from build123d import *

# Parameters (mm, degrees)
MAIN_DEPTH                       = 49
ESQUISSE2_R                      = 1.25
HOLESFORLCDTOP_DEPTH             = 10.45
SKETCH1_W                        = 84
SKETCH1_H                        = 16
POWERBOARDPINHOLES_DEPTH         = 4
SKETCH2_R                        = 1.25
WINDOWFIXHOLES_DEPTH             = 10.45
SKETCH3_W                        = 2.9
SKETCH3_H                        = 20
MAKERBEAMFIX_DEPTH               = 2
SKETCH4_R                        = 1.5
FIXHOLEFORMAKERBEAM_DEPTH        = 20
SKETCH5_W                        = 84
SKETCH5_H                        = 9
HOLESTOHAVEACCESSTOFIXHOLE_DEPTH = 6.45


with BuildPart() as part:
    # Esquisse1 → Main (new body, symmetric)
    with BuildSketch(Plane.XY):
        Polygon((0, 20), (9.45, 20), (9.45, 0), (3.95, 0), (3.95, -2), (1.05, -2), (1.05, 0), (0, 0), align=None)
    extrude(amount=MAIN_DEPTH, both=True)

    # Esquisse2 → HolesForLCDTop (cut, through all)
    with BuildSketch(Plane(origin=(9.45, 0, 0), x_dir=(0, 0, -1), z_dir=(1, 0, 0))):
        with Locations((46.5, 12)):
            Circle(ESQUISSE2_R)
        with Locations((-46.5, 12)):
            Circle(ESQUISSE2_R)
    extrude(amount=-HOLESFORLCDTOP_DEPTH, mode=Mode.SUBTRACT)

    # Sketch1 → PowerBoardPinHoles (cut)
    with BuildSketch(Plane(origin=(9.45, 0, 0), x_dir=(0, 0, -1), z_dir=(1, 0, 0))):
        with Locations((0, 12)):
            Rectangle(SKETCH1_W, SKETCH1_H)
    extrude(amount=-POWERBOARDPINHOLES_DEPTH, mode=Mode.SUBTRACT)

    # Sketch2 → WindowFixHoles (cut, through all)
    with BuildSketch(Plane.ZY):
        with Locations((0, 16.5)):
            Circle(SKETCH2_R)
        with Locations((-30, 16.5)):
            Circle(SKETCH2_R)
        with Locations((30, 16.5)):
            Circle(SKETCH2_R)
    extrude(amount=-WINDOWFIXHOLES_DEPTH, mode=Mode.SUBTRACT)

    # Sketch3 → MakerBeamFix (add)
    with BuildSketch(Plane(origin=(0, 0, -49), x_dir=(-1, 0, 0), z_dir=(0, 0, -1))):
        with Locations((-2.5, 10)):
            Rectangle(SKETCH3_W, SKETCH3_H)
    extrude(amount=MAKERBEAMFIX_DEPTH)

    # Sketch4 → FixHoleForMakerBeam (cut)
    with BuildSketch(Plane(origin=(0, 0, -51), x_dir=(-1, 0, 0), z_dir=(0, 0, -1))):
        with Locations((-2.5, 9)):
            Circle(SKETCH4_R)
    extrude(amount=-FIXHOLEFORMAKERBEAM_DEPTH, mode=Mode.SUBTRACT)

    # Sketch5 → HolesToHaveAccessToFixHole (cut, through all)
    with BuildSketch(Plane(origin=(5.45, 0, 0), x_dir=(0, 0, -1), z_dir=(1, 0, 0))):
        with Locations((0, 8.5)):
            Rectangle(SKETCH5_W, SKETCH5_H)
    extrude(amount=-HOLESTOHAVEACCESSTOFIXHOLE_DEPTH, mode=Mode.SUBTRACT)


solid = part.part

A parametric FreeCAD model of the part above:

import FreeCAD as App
import Part
import Sketcher

V = App.Vector


def add_polygon(sketch, points):
    """Adds a closed chain of lines whose ends are joined by coincident constraints."""
    first, n = sketch.GeometryCount, len(points)
    for a, b in zip(points, points[1:] + points[:1]):
        sketch.addGeometry(Part.LineSegment(App.Vector(*a, 0), App.Vector(*b, 0)), False)
    for i in range(n):
        sketch.addConstraint(Sketcher.Constraint("Coincident", first + i, 2, first + (i + 1) % n, 1))

doc = App.newDocument("Part")
body = doc.addObject("PartDesign::Body", "Body")

# Sketch on XY plane
sketch1 = doc.addObject("Sketcher::SketchObject", "Sketch")
body.addObject(sketch1)
sketch1.AttachmentSupport = (doc.XY_Plane, [""])
sketch1.MapMode = "FlatFace"
add_polygon(sketch1, [(9.45, 20), (0, 20), (0, 0), (1.05, 0), (1.05, -2), (3.95, -2), (3.95, 0), (9.45, 0)])  # lines 0-7
sketch1.addConstraint([
    Sketcher.Constraint("Horizontal", 0),
    Sketcher.Constraint("Vertical", 1),
    Sketcher.Constraint("Horizontal", 2),
    Sketcher.Constraint("Vertical", 3),
    Sketcher.Constraint("Horizontal", 4),
    Sketcher.Constraint("Vertical", 5),
    Sketcher.Constraint("Horizontal", 6),
    Sketcher.Constraint("Vertical", 7),
    Sketcher.Constraint("Coincident", 1, 2, -1, 1),
    Sketcher.Constraint("PointOnObject", 5, 2, -1),
    Sketcher.Constraint("DistanceY", 1, 2, 1, 1, 20.0),
    Sketcher.Constraint("DistanceY", 3, 2, 3, 1, 2.0),
    Sketcher.Constraint("DistanceX", 4, 1, 4, 2, 2.9),
    Sketcher.Constraint("DistanceX", 6, 1, 6, 2, 5.5),
    Sketcher.Constraint("DistanceX", 0, 2, 0, 1, 9.45),
])
pad1 = doc.addObject("PartDesign::Pad", "Pad")
body.addObject(pad1)
pad1.Profile = sketch1
pad1.Length = 98
pad1.Midplane = True

# Sketch on YZ plane
sketch2 = doc.addObject("Sketcher::SketchObject", "Sketch001")
body.addObject(sketch2)
sketch2.AttachmentSupport = (doc.YZ_Plane, [""])
sketch2.MapMode = "FlatFace"
sketch2.AttachmentOffset = App.Placement(V(0, 0, 9.45), App.Rotation())
sketch2.addGeometry([
    Part.Circle(V(12, -46.5, 0), V(0, 0, 1), 1.25),
    Part.Circle(V(12, 46.5, 0), V(0, 0, 1), 1.25),
], False)
sketch2.addConstraint([
    Sketcher.Constraint("Equal", 0, 1),
    Sketcher.Constraint("Symmetric", 0, 3, 1, 3, -1),
    Sketcher.Constraint("Diameter", 0, 2.5),
    Sketcher.Constraint("DistanceX", -1, 1, 0, 3, 12.0),
    Sketcher.Constraint("DistanceY", 0, 3, 1, 3, 93.0),
])
pocket1 = doc.addObject("PartDesign::Pocket", "Pocket")
body.addObject(pocket1)
pocket1.Profile = sketch2
pocket1.Type = "ThroughAll"

# Sketch on YZ plane
sketch3 = doc.addObject("Sketcher::SketchObject", "Sketch002")
body.addObject(sketch3)
sketch3.AttachmentSupport = (doc.YZ_Plane, [""])
sketch3.MapMode = "FlatFace"
sketch3.AttachmentOffset = App.Placement(V(0, 0, 9.45), App.Rotation())
add_polygon(sketch3, [(20, 42), (4, 42), (4, -42), (20, -42)])  # lines 0-3
sketch3.addConstraint([
    Sketcher.Constraint("Horizontal", 0),
    Sketcher.Constraint("Vertical", 1),
    Sketcher.Constraint("Horizontal", 2),
    Sketcher.Constraint("Vertical", 3),
    Sketcher.Constraint("DistanceX", 0, 2, 0, 1, 16.0),
    Sketcher.Constraint("DistanceY", 1, 2, 1, 1, 84.0),
    Sketcher.Constraint("DistanceX", -1, 1, 0, 2, 4.0),
    Sketcher.Constraint("DistanceY", -1, 1, 0, 2, 42.0),
])
pocket2 = doc.addObject("PartDesign::Pocket", "Pocket001")
body.addObject(pocket2)
pocket2.Profile = sketch3
pocket2.Length = 4

# Sketch on YZ plane
sketch4 = doc.addObject("Sketcher::SketchObject", "Sketch003")
body.addObject(sketch4)
sketch4.AttachmentSupport = (doc.YZ_Plane, [""])
sketch4.MapMode = "FlatFace"
sketch4.addGeometry([
    Part.Circle(V(16.5, 0, 0), V(0, 0, 1), 1.25),
    Part.Circle(V(16.5, -30, 0), V(0, 0, 1), 1.25),
    Part.Circle(V(16.5, 30, 0), V(0, 0, 1), 1.25),
], False)
sketch4.addConstraint([
    Sketcher.Constraint("Equal", 0, 1),
    Sketcher.Constraint("Equal", 1, 2),
    Sketcher.Constraint("Symmetric", 1, 3, 2, 3, -1),
    Sketcher.Constraint("PointOnObject", 0, 3, -1),
    Sketcher.Constraint("Vertical", 0, 3, 1, 3),
    Sketcher.Constraint("Diameter", 0, 2.5),
    Sketcher.Constraint("DistanceY", 1, 3, -1, 1, 30.0),
    Sketcher.Constraint("DistanceX", -1, 1, 0, 3, 16.5),
])
pocket3 = doc.addObject("PartDesign::Pocket", "Pocket002")
body.addObject(pocket3)
pocket3.Profile = sketch4
pocket3.Type = "ThroughAll"
pocket3.Reversed = True

# Sketch on XY plane
sketch5 = doc.addObject("Sketcher::SketchObject", "Sketch004")
body.addObject(sketch5)
sketch5.AttachmentSupport = (doc.XY_Plane, [""])
sketch5.MapMode = "FlatFace"
sketch5.AttachmentOffset = App.Placement(V(0, 0, -49), App.Rotation())
add_polygon(sketch5, [(3.95, 20), (3.95, 0), (1.05, 0), (1.05, 20)])  # lines 0-3
sketch5.addConstraint([
    Sketcher.Constraint("Vertical", 0),
    Sketcher.Constraint("Horizontal", 1),
    Sketcher.Constraint("Vertical", 2),
    Sketcher.Constraint("Horizontal", 3),
    Sketcher.Constraint("PointOnObject", 0, 2, -1),
    Sketcher.Constraint("DistanceY", 0, 2, 0, 1, 20.0),
    Sketcher.Constraint("DistanceX", 1, 2, 1, 1, 2.9),
    Sketcher.Constraint("DistanceX", -1, 1, 0, 2, 3.95),
])
pad2 = doc.addObject("PartDesign::Pad", "Pad001")
body.addObject(pad2)
pad2.Profile = sketch5
pad2.Length = 2
pad2.Reversed = True

# Sketch on XY plane
sketch6 = doc.addObject("Sketcher::SketchObject", "Sketch005")
body.addObject(sketch6)
sketch6.AttachmentSupport = (doc.XY_Plane, [""])
sketch6.MapMode = "FlatFace"
sketch6.AttachmentOffset = App.Placement(V(0, 0, -51), App.Rotation())
sketch6.addGeometry(Part.Circle(V(2.5, 9, 0), V(0, 0, 1), 1.5), False)
sketch6.addConstraint([
    Sketcher.Constraint("Diameter", 0, 3.0),
    Sketcher.Constraint("DistanceY", -1, 1, 0, 3, 9.0),
    Sketcher.Constraint("DistanceX", -1, 1, 0, 3, 2.5),
])
pocket4 = doc.addObject("PartDesign::Pocket", "Pocket003")
body.addObject(pocket4)
pocket4.Profile = sketch6
pocket4.Length = 20
pocket4.Reversed = True

# Sketch on YZ plane
sketch7 = doc.addObject("Sketcher::SketchObject", "Sketch006")
body.addObject(sketch7)
sketch7.AttachmentSupport = (doc.YZ_Plane, [""])
sketch7.MapMode = "FlatFace"
sketch7.AttachmentOffset = App.Placement(V(0, 0, 5.45), App.Rotation())
add_polygon(sketch7, [(13, 42), (4, 42), (4, -42), (13, -42)])  # lines 0-3
sketch7.addConstraint([
    Sketcher.Constraint("Horizontal", 0),
    Sketcher.Constraint("Vertical", 1),
    Sketcher.Constraint("Horizontal", 2),
    Sketcher.Constraint("Vertical", 3),
    Sketcher.Constraint("DistanceX", 0, 2, 0, 1, 9.0),
    Sketcher.Constraint("DistanceY", 1, 2, 1, 1, 84.0),
    Sketcher.Constraint("DistanceX", -1, 1, 0, 2, 4.0),
    Sketcher.Constraint("DistanceY", -1, 1, 0, 2, 42.0),
])
pocket5 = doc.addObject("PartDesign::Pocket", "Pocket004")
body.addObject(pocket5)
pocket5.Profile = sketch7
pocket5.Type = "ThroughAll"

doc.recompute()
